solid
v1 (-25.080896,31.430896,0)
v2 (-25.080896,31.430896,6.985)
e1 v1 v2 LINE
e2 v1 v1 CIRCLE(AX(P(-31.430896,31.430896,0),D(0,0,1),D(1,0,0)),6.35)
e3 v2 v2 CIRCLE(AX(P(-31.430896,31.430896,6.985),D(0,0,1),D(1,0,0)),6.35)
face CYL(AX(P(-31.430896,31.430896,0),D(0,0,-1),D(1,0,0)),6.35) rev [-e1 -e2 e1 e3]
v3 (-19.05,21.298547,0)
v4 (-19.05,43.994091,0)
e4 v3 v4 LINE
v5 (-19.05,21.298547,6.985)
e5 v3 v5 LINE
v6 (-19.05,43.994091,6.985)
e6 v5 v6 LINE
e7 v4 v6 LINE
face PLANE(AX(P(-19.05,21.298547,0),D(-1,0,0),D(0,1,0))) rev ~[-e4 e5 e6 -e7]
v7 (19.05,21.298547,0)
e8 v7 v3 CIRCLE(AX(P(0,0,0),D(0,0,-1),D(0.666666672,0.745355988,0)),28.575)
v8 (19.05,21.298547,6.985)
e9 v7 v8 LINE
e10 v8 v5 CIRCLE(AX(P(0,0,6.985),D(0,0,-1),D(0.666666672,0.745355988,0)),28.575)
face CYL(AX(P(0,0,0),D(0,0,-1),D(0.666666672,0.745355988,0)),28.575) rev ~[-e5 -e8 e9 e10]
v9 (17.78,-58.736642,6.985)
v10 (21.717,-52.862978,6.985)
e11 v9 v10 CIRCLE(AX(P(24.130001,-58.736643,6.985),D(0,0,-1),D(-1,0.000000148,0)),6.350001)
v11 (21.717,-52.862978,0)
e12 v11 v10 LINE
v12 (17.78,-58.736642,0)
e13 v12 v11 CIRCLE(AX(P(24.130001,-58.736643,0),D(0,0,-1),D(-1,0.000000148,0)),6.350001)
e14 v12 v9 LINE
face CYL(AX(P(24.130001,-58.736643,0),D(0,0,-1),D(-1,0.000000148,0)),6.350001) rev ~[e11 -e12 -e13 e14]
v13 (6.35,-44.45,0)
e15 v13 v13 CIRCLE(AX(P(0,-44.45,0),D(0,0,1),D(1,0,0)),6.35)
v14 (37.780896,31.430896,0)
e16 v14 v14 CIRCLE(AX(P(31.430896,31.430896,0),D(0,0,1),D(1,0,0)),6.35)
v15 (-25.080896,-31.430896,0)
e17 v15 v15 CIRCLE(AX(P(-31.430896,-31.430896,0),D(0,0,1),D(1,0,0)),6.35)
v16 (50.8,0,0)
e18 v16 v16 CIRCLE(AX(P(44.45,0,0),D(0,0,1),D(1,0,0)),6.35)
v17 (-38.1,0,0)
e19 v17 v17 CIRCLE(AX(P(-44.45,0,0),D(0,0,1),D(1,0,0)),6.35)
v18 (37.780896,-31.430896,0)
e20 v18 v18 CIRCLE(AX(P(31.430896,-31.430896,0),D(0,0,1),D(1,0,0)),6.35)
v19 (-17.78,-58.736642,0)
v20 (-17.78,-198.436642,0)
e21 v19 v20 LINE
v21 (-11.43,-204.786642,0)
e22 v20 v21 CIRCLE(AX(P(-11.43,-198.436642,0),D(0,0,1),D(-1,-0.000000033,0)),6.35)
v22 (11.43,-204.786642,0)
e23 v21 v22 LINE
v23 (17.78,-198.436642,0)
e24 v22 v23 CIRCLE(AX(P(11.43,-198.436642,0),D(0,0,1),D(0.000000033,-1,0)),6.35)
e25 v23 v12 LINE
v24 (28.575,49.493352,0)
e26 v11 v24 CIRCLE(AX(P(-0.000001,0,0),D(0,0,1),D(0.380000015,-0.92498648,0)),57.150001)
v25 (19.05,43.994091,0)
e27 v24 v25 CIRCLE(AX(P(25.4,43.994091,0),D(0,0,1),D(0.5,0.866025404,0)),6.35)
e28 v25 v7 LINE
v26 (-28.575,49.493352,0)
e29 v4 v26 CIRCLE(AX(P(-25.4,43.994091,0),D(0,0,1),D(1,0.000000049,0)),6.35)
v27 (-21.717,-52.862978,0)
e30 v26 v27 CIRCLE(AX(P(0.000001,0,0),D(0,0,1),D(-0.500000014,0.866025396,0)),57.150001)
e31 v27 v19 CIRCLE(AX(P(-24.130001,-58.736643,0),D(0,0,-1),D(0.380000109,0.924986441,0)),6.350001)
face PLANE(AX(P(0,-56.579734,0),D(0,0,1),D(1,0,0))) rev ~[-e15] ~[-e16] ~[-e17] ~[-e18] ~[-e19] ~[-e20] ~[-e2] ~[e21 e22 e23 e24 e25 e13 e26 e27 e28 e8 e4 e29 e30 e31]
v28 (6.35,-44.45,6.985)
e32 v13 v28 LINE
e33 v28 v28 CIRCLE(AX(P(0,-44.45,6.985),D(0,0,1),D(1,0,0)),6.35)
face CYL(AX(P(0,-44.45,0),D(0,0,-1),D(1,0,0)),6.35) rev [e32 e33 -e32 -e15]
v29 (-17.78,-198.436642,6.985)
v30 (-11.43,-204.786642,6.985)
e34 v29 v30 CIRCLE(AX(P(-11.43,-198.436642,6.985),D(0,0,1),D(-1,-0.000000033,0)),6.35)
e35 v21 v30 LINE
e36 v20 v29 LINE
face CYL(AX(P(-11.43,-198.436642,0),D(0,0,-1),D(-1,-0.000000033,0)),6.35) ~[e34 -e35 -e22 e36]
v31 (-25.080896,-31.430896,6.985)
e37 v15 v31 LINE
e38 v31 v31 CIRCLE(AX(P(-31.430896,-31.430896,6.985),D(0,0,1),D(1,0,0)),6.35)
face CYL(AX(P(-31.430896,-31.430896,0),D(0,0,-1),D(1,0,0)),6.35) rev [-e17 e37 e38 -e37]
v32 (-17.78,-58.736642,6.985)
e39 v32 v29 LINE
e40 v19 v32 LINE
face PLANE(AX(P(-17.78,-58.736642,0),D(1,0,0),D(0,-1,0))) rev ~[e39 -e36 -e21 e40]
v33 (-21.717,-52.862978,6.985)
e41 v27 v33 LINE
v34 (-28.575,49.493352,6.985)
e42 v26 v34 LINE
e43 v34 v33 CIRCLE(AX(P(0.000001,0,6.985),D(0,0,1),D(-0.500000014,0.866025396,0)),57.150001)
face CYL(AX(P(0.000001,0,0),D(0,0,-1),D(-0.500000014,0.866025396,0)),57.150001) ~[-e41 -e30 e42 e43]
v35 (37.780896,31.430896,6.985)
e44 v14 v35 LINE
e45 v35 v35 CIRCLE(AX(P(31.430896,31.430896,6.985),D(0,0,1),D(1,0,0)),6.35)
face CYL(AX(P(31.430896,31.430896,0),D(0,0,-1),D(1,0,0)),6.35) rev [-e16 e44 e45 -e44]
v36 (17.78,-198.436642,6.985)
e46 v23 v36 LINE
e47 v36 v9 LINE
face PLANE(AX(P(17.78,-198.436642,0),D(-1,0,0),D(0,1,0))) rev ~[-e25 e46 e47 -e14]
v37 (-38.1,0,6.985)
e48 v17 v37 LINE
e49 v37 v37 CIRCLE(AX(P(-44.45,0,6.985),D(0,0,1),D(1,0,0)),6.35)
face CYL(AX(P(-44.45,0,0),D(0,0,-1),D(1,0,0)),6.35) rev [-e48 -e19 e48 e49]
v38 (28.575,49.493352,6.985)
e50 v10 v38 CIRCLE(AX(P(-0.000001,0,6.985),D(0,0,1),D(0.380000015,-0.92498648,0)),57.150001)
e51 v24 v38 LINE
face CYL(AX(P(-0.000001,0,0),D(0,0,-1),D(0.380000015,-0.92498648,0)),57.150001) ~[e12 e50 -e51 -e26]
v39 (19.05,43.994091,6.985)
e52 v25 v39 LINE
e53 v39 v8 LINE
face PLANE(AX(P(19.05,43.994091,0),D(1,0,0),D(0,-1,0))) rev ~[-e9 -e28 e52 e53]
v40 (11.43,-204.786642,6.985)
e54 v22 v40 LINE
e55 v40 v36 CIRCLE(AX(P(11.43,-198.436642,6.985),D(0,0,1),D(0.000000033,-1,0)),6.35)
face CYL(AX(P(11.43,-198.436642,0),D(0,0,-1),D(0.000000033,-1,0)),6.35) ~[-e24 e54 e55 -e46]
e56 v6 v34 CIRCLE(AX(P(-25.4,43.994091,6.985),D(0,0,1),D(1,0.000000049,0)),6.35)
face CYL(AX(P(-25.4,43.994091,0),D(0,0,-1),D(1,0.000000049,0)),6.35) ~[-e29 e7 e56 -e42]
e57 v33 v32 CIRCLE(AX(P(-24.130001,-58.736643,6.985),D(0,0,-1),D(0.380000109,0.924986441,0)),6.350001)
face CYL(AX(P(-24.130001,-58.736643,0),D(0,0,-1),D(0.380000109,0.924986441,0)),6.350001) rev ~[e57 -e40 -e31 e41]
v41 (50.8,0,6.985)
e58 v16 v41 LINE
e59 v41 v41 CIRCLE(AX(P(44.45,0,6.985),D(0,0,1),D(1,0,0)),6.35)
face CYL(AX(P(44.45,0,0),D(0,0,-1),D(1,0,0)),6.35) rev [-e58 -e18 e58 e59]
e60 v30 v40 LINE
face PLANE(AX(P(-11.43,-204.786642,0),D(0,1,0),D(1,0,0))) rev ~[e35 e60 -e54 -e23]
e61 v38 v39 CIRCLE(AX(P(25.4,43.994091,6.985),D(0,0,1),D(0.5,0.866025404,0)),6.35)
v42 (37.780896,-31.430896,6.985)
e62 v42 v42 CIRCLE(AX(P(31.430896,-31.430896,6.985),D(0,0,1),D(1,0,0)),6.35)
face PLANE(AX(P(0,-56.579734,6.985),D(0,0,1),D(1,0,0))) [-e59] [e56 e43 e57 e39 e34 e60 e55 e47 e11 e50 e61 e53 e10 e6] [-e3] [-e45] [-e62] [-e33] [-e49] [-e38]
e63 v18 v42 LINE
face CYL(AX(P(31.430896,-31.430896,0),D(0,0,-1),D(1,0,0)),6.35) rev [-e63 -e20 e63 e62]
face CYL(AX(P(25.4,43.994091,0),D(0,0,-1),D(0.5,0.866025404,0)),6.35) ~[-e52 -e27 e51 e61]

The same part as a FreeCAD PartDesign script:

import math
import FreeCAD as App
import Part
import Sketcher

V = App.Vector
Q = App.Units.Quantity

doc = App.newDocument("Part")
params = doc.addObject("Spreadsheet::Sheet", "Params")
for row, (alias, value) in enumerate([
    ("sketch1_diameter", "0.5 in"),
    ("sketch1_radius", "2.25 in"),
    ("sketch1_width", "0.9 in"),
    ("sketch1_height", "5.5 in"),
    ("sketch1_radius2", "1.125 in"),
    ("pad1_length", "0.275 in"),
], start=1):
    params.set(f"A{row}", alias)
    params.set(f"B{row}", "=" + value)
    params.setAlias(f"B{row}", alias)

body = doc.addObject("PartDesign::Body", "Body")

# Sketch on XY plane
sketch1 = body.newObject("Sketcher::SketchObject", "Sketch")
sketch1.AttachmentSupport = (doc.getObject("XY_Plane"), [""])
sketch1.MapMode = "FlatFace"
sketch1.addGeometry(Part.ArcOfCircle(Part.Circle(V(-25.4, 43.994091, 0), V(0, 0, 1), 6.35), math.radians(0.000003), math.radians(120)), False)
sketch1.addGeometry(Part.ArcOfCircle(Part.Circle(V(0.000001, 0, 0), V(0, 0, 1), 57.150001), math.radians(120.000001), math.radians(247.666316)), False)
sketch1.addGeometry(Part.ArcOfCircle(Part.Circle(V(-24.130001, -58.736643, 0), V(0, 0, 1), 6.350001), math.radians(0.000008), math.radians(67.666311)), False)
sketch1.addGeometry(Part.LineSegment(V(-17.78, -58.736642, 0), V(-17.78, -198.436642, 0)), False)
sketch1.addGeometry(Part.ArcOfCircle(Part.Circle(V(-11.43, -198.436642, 0), V(0, 0, 1), 6.35), math.radians(-179.999998), math.radians(-90.000002)), False)
sketch1.addGeometry(Part.LineSegment(V(-11.43, -204.786642, 0), V(11.43, -204.786642, 0)), False)
sketch1.addGeometry(Part.ArcOfCircle(Part.Circle(V(11.43, -198.436642, 0), V(0, 0, 1), 6.35), math.radians(-89.999998), math.radians(-0.000002)), False)
sketch1.addGeometry(Part.LineSegment(V(17.78, -198.436642, 0), V(17.78, -58.736642, 0)), False)
sketch1.addGeometry(Part.ArcOfCircle(Part.Circle(V(24.130001, -58.736643, 0), V(0, 0, 1), 6.350001), math.radians(112.333689), math.radians(179.999992)), False)
sketch1.addGeometry(Part.ArcOfCircle(Part.Circle(V(-0.000001, 0, 0), V(0, 0, 1), 57.150001), math.radians(-67.666316), math.radians(59.999999)), False)
sketch1.addGeometry(Part.ArcOfCircle(Part.Circle(V(25.4, 43.994091, 0), V(0, 0, 1), 6.35), math.radians(60), math.radians(179.999997)), False)
sketch1.addGeometry(Part.LineSegment(V(19.05, 43.994091, 0), V(19.05, 21.298547, 0)), False)
sketch1.addGeometry(Part.ArcOfCircle(Part.Circle(V(0, 0, 0), V(0, 0, 1), 28.575), math.radians(131.810315), math.radians(408.189685)), False)
sketch1.addGeometry(Part.LineSegment(V(-19.05, 21.298547, 0), V(-19.05, 43.994091, 0)), False)
sketch1.addGeometry(Part.Circle(V(-31.430896, -31.430896, 0), V(0, 0, 1), 6.35), False)
sketch1.addGeometry(Part.Circle(V(0, -44.45, 0), V(0, 0, 1), 6.35), False)
sketch1.addGeometry(Part.Circle(V(31.430896, -31.430896, 0), V(0, 0, 1), 6.35), False)
sketch1.addGeometry(Part.Circle(V(-44.45, 0, 0), V(0, 0, 1), 6.35), False)
sketch1.addGeometry(Part.Circle(V(-31.430896, 31.430896, 0), V(0, 0, 1), 6.35), False)
sketch1.addGeometry(Part.Circle(V(44.45, 0, 0), V(0, 0, 1), 6.35), False)
sketch1.addGeometry(Part.Circle(V(31.430896, 31.430896, 0), V(0, 0, 1), 6.35), False)
sketch1.addConstraint(Sketcher.Constraint("Tangent", 0, 2, 1, 1))
sketch1.addConstraint(Sketcher.Constraint("Tangent", 1, 2, 2, 2))
sketch1.addConstraint(Sketcher.Constraint("Tangent", 2, 1, 3, 1))
sketch1.addConstraint(Sketcher.Constraint("Tangent", 3, 2, 4, 1))
sketch1.addConstraint(Sketcher.Constraint("Tangent", 4, 2, 5, 1))
sketch1.addConstraint(Sketcher.Constraint("Tangent", 5, 2, 6, 1))
sketch1.addConstraint(Sketcher.Constraint("Tangent", 6, 2, 7, 1))
sketch1.addConstraint(Sketcher.Constraint("Tangent", 7, 2, 8, 2))
sketch1.addConstraint(Sketcher.Constraint("Tangent", 8, 1, 9, 1))
sketch1.addConstraint(Sketcher.Constraint("Tangent", 9, 2, 10, 1))
sketch1.addConstraint(Sketcher.Constraint("Tangent", 10, 2, 11, 1))
sketch1.addConstraint(Sketcher.Constraint("Coincident", 11, 2, 12, 2))
sketch1.addConstraint(Sketcher.Constraint("Coincident", 12, 1, 13, 1))
sketch1.addConstraint(Sketcher.Constraint("Tangent", 13, 2, 0, 1))
sketch1.addConstraint(Sketcher.Constraint("Vertical", 3))
sketch1.addConstraint(Sketcher.Constraint("Horizontal", 5))
sketch1.addConstraint(Sketcher.Constraint("Vertical", 7))
sketch1.addConstraint(Sketcher.Constraint("Vertical", 11))
sketch1.addConstraint(Sketcher.Constraint("Vertical", 13))
sketch1.addConstraint(Sketcher.Constraint("Coincident", 1, 3, -1, 1))
sketch1.addConstraint(Sketcher.Constraint("Coincident", 9, 3, -1, 1))
sketch1.addConstraint(Sketcher.Constraint("Coincident", 12, 3, -1, 1))
sketch1.addConstraint(Sketcher.Constraint("Equal", 0, 2))
sketch1.addConstraint(Sketcher.Constraint("Equal", 2, 4))
sketch1.addConstraint(Sketcher.Constraint("Equal", 4, 6))
sketch1.addConstraint(Sketcher.Constraint("Equal", 6, 8))
sketch1.addConstraint(Sketcher.Constraint("Equal", 1, 9))
sketch1.addConstraint(Sketcher.Constraint("Equal", 8, 10))
sketch1.addConstraint(Sketcher.Constraint("Equal", 10, 14))
sketch1.addConstraint(Sketcher.Constraint("Equal", 14, 15))
sketch1.addConstraint(Sketcher.Constraint("Equal", 15, 16))
sketch1.addConstraint(Sketcher.Constraint("Equal", 16, 17))
sketch1.addConstraint(Sketcher.Constraint("Equal", 17, 18))
sketch1.addConstraint(Sketcher.Constraint("Equal", 18, 19))
sketch1.addConstraint(Sketcher.Constraint("Equal", 19, 20))
sketch1.addConstraint(Sketcher.Constraint("Symmetric", 16, 3, 18, 3, -1, 1))
sketch1.addConstraint(Sketcher.Constraint("Symmetric", 17, 3, 19, 3, -1, 1))
sketch1.addConstraint(Sketcher.Constraint("Symmetric", 14, 3, 20, 3, -1, 1))
sketch1.addConstraint(Sketcher.Constraint("Symmetric", 14, 3, 16, 3, -2))
sketch1.addConstraint(Sketcher.Constraint("PointOnObject", 15, 3, -2))
sketch1.addConstraint(Sketcher.Constraint("PointOnObject", 17, 3, -1))
sketch1.addConstraint(Sketcher.Constraint("Horizontal", 2, 3, 8, 3))
sketch1.addConstraint(Sketcher.Constraint("Horizontal", 0, 3, 10, 3))
sketch1.addConstraint(Sketcher.Constraint("Diameter", 14, Q("0.5 in")))
sketch1.addConstraint(Sketcher.Constraint("Radius", 1, Q("2.25 in")))
sketch1.addConstraint(Sketcher.Constraint("DistanceX", 5, 1, 5, 2, Q("0.9 in")))
sketch1.addConstraint(Sketcher.Constraint("DistanceY", 3, 2, 3, 1, Q("5.5 in")))
sketch1.addConstraint(Sketcher.Constraint("DistanceX", 0, 3, -1, 1, Q("1 in")))
sketch1.addConstraint(Sketcher.Constraint("Radius", 12, Q("1.125 in")))
sketch1.addConstraint(Sketcher.Constraint("DistanceY", 15, 3, -1, 1, Q("1.75 in")))
sketch1.addConstraint(Sketcher.Constraint("DistanceX", 17, 3, -1, 1, Q("1.75 in")))
sketch1.addConstraint(Sketcher.Constraint("DistanceY", 1, 2, 14, 3, 21.432082))
sketch1.addConstraint(Sketcher.Constraint("DistanceX", 14, 3, -1, 1, 31.430896))
sketch1.setExpression("Constraints[43]", "Params.sketch1_diameter")
sketch1.setExpression("Constraints[44]", "Params.sketch1_radius")
sketch1.setExpression("Constraints[45]", "Params.sketch1_width")
sketch1.setExpression("Constraints[46]", "Params.sketch1_height")
sketch1.setExpression("Constraints[48]", "Params.sketch1_radius2")
pad1 = body.newObject("PartDesign::Pad", "Pad")
pad1.Profile = sketch1
pad1.setExpression("Length", "Params.pad1_length")

doc.recompute()
